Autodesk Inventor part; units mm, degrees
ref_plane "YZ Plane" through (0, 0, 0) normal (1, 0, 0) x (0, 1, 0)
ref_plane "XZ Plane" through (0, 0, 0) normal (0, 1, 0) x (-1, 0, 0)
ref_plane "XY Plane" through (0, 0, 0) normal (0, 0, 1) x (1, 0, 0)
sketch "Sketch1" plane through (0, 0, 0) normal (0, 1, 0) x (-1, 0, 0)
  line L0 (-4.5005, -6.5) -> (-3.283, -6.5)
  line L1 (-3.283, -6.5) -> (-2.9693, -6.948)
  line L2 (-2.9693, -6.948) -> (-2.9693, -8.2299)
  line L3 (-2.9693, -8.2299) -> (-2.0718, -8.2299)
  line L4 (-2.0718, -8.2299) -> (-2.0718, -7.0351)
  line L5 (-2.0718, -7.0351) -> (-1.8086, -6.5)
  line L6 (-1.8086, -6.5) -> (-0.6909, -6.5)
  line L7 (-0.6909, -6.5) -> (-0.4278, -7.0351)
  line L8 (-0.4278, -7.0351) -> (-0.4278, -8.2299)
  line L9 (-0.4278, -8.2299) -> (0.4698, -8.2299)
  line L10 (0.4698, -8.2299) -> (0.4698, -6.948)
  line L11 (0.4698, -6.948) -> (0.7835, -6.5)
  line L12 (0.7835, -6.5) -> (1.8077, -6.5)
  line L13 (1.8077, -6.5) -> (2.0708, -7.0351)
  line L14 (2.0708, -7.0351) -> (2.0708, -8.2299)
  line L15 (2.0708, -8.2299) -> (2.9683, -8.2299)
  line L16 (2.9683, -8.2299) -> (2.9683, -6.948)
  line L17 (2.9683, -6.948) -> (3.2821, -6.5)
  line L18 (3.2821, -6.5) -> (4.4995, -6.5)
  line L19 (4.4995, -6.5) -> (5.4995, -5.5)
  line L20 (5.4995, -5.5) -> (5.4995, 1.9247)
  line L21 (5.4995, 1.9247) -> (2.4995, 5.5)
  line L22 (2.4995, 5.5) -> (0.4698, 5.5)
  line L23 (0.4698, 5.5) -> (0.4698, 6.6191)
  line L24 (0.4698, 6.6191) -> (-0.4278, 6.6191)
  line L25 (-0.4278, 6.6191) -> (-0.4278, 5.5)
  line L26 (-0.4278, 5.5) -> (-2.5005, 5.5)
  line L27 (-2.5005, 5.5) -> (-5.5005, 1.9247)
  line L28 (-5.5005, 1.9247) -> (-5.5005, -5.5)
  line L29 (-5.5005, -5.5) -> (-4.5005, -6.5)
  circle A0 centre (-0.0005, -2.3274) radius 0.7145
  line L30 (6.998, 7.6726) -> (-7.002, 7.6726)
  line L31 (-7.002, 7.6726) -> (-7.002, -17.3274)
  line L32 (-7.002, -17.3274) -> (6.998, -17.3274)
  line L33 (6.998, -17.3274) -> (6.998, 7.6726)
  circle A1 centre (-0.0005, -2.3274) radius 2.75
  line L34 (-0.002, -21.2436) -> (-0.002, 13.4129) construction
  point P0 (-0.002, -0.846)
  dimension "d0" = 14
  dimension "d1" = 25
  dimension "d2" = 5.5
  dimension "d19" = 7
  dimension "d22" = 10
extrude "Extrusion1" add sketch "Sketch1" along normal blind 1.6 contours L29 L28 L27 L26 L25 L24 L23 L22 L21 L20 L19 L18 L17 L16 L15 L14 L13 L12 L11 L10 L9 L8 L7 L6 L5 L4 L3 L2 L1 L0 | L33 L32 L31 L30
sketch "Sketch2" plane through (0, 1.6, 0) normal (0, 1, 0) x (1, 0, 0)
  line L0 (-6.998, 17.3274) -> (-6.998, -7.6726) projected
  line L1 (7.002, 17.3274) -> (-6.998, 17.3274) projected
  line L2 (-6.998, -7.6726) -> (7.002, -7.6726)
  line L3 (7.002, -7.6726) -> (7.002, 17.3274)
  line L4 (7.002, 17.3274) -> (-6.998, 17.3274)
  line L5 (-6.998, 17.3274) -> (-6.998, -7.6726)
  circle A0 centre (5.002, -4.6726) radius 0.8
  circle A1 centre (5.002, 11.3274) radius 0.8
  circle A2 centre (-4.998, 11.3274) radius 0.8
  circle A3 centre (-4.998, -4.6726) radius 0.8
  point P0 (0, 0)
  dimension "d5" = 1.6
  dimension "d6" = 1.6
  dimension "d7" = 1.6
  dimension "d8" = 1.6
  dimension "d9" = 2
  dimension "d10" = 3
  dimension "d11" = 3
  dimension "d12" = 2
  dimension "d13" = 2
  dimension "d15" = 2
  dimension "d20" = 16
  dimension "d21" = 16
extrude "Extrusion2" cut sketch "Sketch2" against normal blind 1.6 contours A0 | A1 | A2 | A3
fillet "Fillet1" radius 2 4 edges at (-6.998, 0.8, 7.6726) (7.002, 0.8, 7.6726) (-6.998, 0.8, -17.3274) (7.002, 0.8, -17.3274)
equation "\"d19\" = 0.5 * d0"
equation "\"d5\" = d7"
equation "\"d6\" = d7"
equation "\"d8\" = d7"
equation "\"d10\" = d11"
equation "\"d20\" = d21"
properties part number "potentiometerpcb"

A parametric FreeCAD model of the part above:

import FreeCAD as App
import Part
import Sketcher

V = App.Vector


def edges_at(feature, points):
    """Names of the edges that pass closest to the given points."""
    edges = feature.Shape.Edges
    near = lambda p: min(range(len(edges)), key=lambda i: edges[i].distToShape(Part.Vertex(*p))[0])
    return sorted({f"Edge{near(p) + 1}" for p in points})


def add_polygon(sketch, points):
    """Adds a closed chain of lines whose ends are joined by coincident constraints."""
    first, n = sketch.GeometryCount, len(points)
    for a, b in zip(points, points[1:] + points[:1]):
        sketch.addGeometry(Part.LineSegment(App.Vector(*a, 0), App.Vector(*b, 0)), False)
    for i in range(n):
        sketch.addConstraint(Sketcher.Constraint("Coincident", first + i, 2, first + (i + 1) % n, 1))

doc = App.newDocument("Part")
body = doc.addObject("PartDesign::Body", "Body")

sketch1 = body.newObject("Sketcher::SketchObject", "Sketch")
sketch1.AttachmentSupport = (doc.getObject("XZ_Plane"), [""])
sketch1.MapMode = "FlatFace"
add_polygon(sketch1, [(-7, -17.3), (-7, 7.7), (7, 7.7), (7, -17.3)])
sketch1.addGeometry(Part.Circle(V(0, -2.3, 0), V(0, 0, 1), 2.8), False)
sketch1.addConstraint([
    Sketcher.Constraint("Vertical", 0),
    Sketcher.Constraint("Horizontal", 1),
    Sketcher.Constraint("Vertical", 2),
    Sketcher.Constraint("Horizontal", 3),
    Sketcher.Constraint("Diameter", 4, 5.5),
    Sketcher.Constraint("DistanceX", 1, 1, 1, 2, 14.0),
    Sketcher.Constraint("DistanceY", 0, 1, 0, 2, 25.0),
    Sketcher.Constraint("DistanceY", 4, 3, 0, 2, 10.0),
    Sketcher.Constraint("DistanceX", 0, 2, -1, 1, 6.998),
    Sketcher.Constraint("DistanceX", -1, 1, 4, 3, 0.0005),
    Sketcher.Constraint("DistanceY", 4, 3, -1, 1, 2.3274),
])
pad1 = body.newObject("PartDesign::Pad", "Pad")
pad1.Profile = sketch1
pad1.Length = 1.6
pad1.Reversed = True

sketch2 = body.newObject("Sketcher::SketchObject", "Sketch001")
sketch2.AttachmentSupport = (doc.getObject("XZ_Plane"), [""])
sketch2.MapMode = "FlatFace"
sketch2.AttachmentOffset = App.Placement(V(0, 0, -1.6), App.Rotation())
sketch2.addGeometry([
    Part.Circle(V(5, 4.7, 0), V(0, 0, 1), 0.8),
    Part.Circle(V(5, -11.3, 0), V(0, 0, 1), 0.8),
    Part.Circle(V(-5, -11.3, 0), V(0, 0, 1), 0.8),
    Part.Circle(V(-5, 4.7, 0), V(0, 0, 1), 0.8),
], False)
sketch2.addConstraint([
    Sketcher.Constraint("Equal", 0, 1),
    Sketcher.Constraint("Equal", 1, 2),
    Sketcher.Constraint("Equal", 2, 3),
    Sketcher.Constraint("Horizontal", 1, 3, 2, 3),
    Sketcher.Constraint("Horizontal", 0, 3, 3, 3),
    Sketcher.Constraint("Vertical", 0, 3, 1, 3),
    Sketcher.Constraint("Vertical", 2, 3, 3, 3),
    Sketcher.Constraint("Diameter", 0, 1.6),
    Sketcher.Constraint("DistanceY", 1, 3, 0, 3, 16.0),
    Sketcher.Constraint("DistanceX", 2, 3, 1, 3, 10.0),
    Sketcher.Constraint("DistanceX", -1, 1, 0, 3, 5.002),
    Sketcher.Constraint("DistanceY", -1, 1, 0, 3, 4.6726),
])
pocket1 = body.newObject("PartDesign::Pocket", "Pocket")
pocket1.Profile = sketch2
pocket1.Length = 1.6
pocket1.Reversed = True
doc.recompute()

fillet = body.newObject("PartDesign::Fillet", "Fillet")
fillet.Base = (pocket1, edges_at(pocket1, [
    (-6.998, 0.8, 7.673),
    (7.002, 0.8, 7.673),
    (-6.998, 0.8, -17.327),
    (7.002, 0.8, -17.327),
]))
fillet.Radius = 2

doc.recompute()
